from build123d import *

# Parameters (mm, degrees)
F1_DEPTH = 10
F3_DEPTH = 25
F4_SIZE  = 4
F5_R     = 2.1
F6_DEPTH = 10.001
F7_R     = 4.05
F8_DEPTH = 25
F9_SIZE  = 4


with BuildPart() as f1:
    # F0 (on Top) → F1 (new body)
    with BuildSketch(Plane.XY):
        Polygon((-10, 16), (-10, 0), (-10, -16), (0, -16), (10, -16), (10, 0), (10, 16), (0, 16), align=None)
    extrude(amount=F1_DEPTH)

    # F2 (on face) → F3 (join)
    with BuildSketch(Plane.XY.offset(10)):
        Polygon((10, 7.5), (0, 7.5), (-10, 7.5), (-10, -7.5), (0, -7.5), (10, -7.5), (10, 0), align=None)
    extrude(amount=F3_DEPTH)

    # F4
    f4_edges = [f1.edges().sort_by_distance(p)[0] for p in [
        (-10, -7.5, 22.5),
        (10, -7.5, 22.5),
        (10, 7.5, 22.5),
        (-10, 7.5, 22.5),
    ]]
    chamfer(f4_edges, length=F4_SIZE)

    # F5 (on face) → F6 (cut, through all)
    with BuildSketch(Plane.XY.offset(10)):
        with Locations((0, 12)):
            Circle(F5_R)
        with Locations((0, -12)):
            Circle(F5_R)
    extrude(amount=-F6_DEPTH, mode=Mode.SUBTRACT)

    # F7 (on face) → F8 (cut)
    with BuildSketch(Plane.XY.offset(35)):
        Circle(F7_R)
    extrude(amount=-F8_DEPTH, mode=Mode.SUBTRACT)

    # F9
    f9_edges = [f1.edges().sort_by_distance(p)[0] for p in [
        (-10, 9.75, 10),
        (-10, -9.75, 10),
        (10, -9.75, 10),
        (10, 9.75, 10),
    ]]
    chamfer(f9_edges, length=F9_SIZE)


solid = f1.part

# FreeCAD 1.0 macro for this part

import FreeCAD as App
import Part
import Sketcher
from FreeCAD import Vector


def edges_at(feature, points):
    """Names of the edges that pass closest to the given points."""
    edges = feature.Shape.Edges
    near = lambda p: min(range(len(edges)), key=lambda i: edges[i].distToShape(Part.Vertex(*p))[0])
    return sorted({f"Edge{near(p) + 1}" for p in points})


def add_polygon(sketch, points):
    """Adds a closed chain of lines whose ends are joined by coincident constraints."""
    first, n = sketch.GeometryCount, len(points)
    for a, b in zip(points, points[1:] + points[:1]):
        sketch.addGeometry(Part.LineSegment(App.Vector(*a, 0), App.Vector(*b, 0)), False)
    for i in range(n):
        sketch.addConstraint(Sketcher.Constraint("Coincident", first + i, 2, first + (i + 1) % n, 1))

doc = App.newDocument("Part")
body = doc.addObject("PartDesign::Body", "Body")

sketch1 = doc.addObject("Sketcher::SketchObject", "Sketch")
body.addObject(sketch1)
sketch1.AttachmentSupport = (doc.XY_Plane, [""])
sketch1.MapMode = "FlatFace"
add_polygon(sketch1, [(-10, 16), (-10, -16), (10, -16), (10, 16)])
sketch1.addConstraint([
    Sketcher.Constraint("Vertical", 0),
    Sketcher.Constraint("Horizontal", 1),
    Sketcher.Constraint("Vertical", 2),
    Sketcher.Constraint("Horizontal", 3),
    Sketcher.Constraint("Symmetric", 0, 2, 2, 2, -1, 1),
    Sketcher.Constraint("DistanceX", 1, 1, 1, 2, 20.0),
    Sketcher.Constraint("DistanceY", 0, 2, 0, 1, 32.0),
])
pad1 = doc.addObject("PartDesign::Pad", "Pad")
body.addObject(pad1)
pad1.Profile = sketch1
pad1.Length = 10

sketch2 = doc.addObject("Sketcher::SketchObject", "Sketch001")
body.addObject(sketch2)
sketch2.AttachmentSupport = (doc.XY_Plane, [""])
sketch2.MapMode = "FlatFace"
sketch2.AttachmentOffset = App.Placement(Vector(0, 0, 10), App.Rotation())
add_polygon(sketch2, [(10, 8), (-10, 8), (-10, -8), (10, -8)])
sketch2.addConstraint([
    Sketcher.Constraint("Horizontal", 0),
    Sketcher.Constraint("Vertical", 1),
    Sketcher.Constraint("Horizontal", 2),
    Sketcher.Constraint("Vertical", 3),
    Sketcher.Constraint("Symmetric", 0, 2, 2, 2, -1, 1),
    Sketcher.Constraint("DistanceX", 0, 2, 0, 1, 20.0),
    Sketcher.Constraint("DistanceY", 1, 2, 1, 1, 15.0),
])
pad2 = doc.addObject("PartDesign::Pad", "Pad001")
body.addObject(pad2)
pad2.Profile = sketch2
pad2.Length = 25
doc.recompute()

chamfer = doc.addObject("PartDesign::Chamfer", "Chamfer")
body.addObject(chamfer)
chamfer.Base = (pad2, edges_at(pad2, [
    (-10, -7.5, 22.5),
    (10, -7.5, 22.5),
    (10, 7.5, 22.5),
    (-10, 7.5, 22.5),
]))
chamfer.Size = 4

sketch3 = doc.addObject("Sketcher::SketchObject", "Sketch002")
body.addObject(sketch3)
sketch3.AttachmentSupport = (doc.XY_Plane, [""])
sketch3.MapMode = "FlatFace"
sketch3.AttachmentOffset = App.Placement(Vector(0, 0, 10), App.Rotation())
sketch3.addGeometry([
    Part.Circle(Vector(0, 12, 0), Vector(0, 0, 1), 2.1),
    Part.Circle(Vector(0, -12, 0), Vector(0, 0, 1), 2.1),
], False)
sketch3.addConstraint([
    Sketcher.Constraint("Equal", 0, 1),
    Sketcher.Constraint("Symmetric", 0, 3, 1, 3, -1, 1),
    Sketcher.Constraint("PointOnObject", 0, 3, -2),
    Sketcher.Constraint("Diameter", 0, 4.2),
    Sketcher.Constraint("DistanceY", -1, 1, 0, 3, 12.0),
])
pocket1 = doc.addObject("PartDesign::Pocket", "Pocket")
body.addObject(pocket1)
pocket1.Profile = sketch3
pocket1.Type = "ThroughAll"

sketch4 = doc.addObject("Sketcher::SketchObject", "Sketch003")
body.addObject(sketch4)
sketch4.AttachmentSupport = (doc.XY_Plane, [""])
sketch4.MapMode = "FlatFace"
sketch4.AttachmentOffset = App.Placement(Vector(0, 0, 35), App.Rotation())
sketch4.addGeometry(Part.Circle(Vector(0, 0, 0), Vector(0, 0, 1), 4), False)
sketch4.addConstraint([
    Sketcher.Constraint("Coincident", 0, 3, -1, 1),
    Sketcher.Constraint("Diameter", 0, 8.1),
])
pocket2 = doc.addObject("PartDesign::Pocket", "Pocket001")
body.addObject(pocket2)
pocket2.Profile = sketch4
pocket2.Length = 25
doc.recompute()

chamfer2 = doc.addObject("PartDesign::Chamfer", "Chamfer001")
body.addObject(chamfer2)
chamfer2.Base = (pocket2, edges_at(pocket2, [
    (-10, 9.75, 10),
    (-10, -9.75, 10),
    (10, -9.75, 10),
    (10, 9.75, 10),
]))
chamfer2.Size = 4

doc.recompute()
